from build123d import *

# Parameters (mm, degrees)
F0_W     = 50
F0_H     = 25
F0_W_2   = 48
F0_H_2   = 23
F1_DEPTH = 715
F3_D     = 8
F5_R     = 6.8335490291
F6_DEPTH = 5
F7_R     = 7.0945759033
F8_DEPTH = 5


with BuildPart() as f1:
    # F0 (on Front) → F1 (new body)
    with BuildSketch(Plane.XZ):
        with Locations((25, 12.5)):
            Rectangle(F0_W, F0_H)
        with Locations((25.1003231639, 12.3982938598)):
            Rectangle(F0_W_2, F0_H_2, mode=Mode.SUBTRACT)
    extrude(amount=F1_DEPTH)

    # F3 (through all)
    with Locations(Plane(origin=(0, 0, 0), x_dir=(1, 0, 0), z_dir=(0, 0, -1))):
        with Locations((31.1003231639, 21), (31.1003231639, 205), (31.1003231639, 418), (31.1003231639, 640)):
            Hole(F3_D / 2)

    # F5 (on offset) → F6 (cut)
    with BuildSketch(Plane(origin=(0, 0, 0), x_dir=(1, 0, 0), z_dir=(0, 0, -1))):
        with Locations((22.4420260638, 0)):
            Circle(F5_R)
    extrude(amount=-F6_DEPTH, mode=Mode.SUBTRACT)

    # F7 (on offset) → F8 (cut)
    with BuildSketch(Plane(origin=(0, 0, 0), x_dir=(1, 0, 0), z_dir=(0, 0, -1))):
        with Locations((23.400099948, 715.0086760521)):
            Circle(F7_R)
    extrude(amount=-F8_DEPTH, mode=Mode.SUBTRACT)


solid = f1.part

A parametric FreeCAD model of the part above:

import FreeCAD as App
import Part
import Sketcher
Q = App.Units.Quantity

doc = App.newDocument("Part")
body = doc.addObject("PartDesign::Body", "Body")

sketch1 = body.newObject("Sketcher::SketchObject", "Sketch")
sketch1.AttachmentSupport = (doc.getObject("XZ_Plane"), [""])
sketch1.MapMode = "FlatFace"
sketch1.addGeometry(Part.LineSegment(App.Vector(0, 25, 0), App.Vector(0, 0, 0)), False)
sketch1.addGeometry(Part.LineSegment(App.Vector(0, 0, 0), App.Vector(50, 0, 0)), False)
sketch1.addGeometry(Part.LineSegment(App.Vector(50, 0, 0), App.Vector(50, 25, 0)), False)
sketch1.addGeometry(Part.LineSegment(App.Vector(50, 25, 0), App.Vector(0, 25, 0)), False)
sketch1.addGeometry(Part.LineSegment(App.Vector(49, 1, 0), App.Vector(1, 1, 0)), False)
sketch1.addGeometry(Part.LineSegment(App.Vector(1, 1, 0), App.Vector(1, 24, 0)), False)
sketch1.addGeometry(Part.LineSegment(App.Vector(1, 24, 0), App.Vector(49, 24, 0)), False)
sketch1.addGeometry(Part.LineSegment(App.Vector(49, 24, 0), App.Vector(49, 1, 0)), False)
sketch1.addConstraint(Sketcher.Constraint("Coincident", 0, 2, 1, 1))
sketch1.addConstraint(Sketcher.Constraint("Coincident", 1, 2, 2, 1))
sketch1.addConstraint(Sketcher.Constraint("Coincident", 2, 2, 3, 1))
sketch1.addConstraint(Sketcher.Constraint("Coincident", 3, 2, 0, 1))
sketch1.addConstraint(Sketcher.Constraint("Coincident", 4, 2, 5, 1))
sketch1.addConstraint(Sketcher.Constraint("Coincident", 5, 2, 6, 1))
sketch1.addConstraint(Sketcher.Constraint("Coincident", 6, 2, 7, 1))
sketch1.addConstraint(Sketcher.Constraint("Coincident", 7, 2, 4, 1))
sketch1.addConstraint(Sketcher.Constraint("Vertical", 0))
sketch1.addConstraint(Sketcher.Constraint("Horizontal", 1))
sketch1.addConstraint(Sketcher.Constraint("Vertical", 2))
sketch1.addConstraint(Sketcher.Constraint("Horizontal", 3))
sketch1.addConstraint(Sketcher.Constraint("Horizontal", 4))
sketch1.addConstraint(Sketcher.Constraint("Vertical", 5))
sketch1.addConstraint(Sketcher.Constraint("Horizontal", 6))
sketch1.addConstraint(Sketcher.Constraint("Vertical", 7))
sketch1.addConstraint(Sketcher.Constraint("Coincident", 0, 2, -1, 1))
sketch1.addConstraint(Sketcher.Constraint("DistanceX", 1, 1, 1, 2, Q("50 mm")))
sketch1.addConstraint(Sketcher.Constraint("DistanceX", 4, 2, 4, 1, Q("48 mm")))
sketch1.addConstraint(Sketcher.Constraint("DistanceY", 0, 2, 0, 1, Q("25 mm")))
sketch1.addConstraint(Sketcher.Constraint("DistanceY", 5, 1, 5, 2, Q("23 mm")))
sketch1.addConstraint(Sketcher.Constraint("DistanceX", -1, 1, 4, 2, Q("1.100323 mm")))
sketch1.addConstraint(Sketcher.Constraint("DistanceY", -1, 1, 4, 2, Q("0.898294 mm")))
pad1 = body.newObject("PartDesign::Pad", "Pad")
pad1.Profile = sketch1
pad1.Length = 715

sketch2 = body.newObject("Sketcher::SketchObject", "Sketch001")
sketch2.AttachmentSupport = (doc.getObject("XY_Plane"), [""])
sketch2.MapMode = "FlatFace"
sketch2.addGeometry(Part.Circle(App.Vector(31.1, -21, 0), App.Vector(0, 0, 1), 4), False)
sketch2.addGeometry(Part.Circle(App.Vector(31.1, -205, 0), App.Vector(0, 0, 1), 4), False)
sketch2.addGeometry(Part.Circle(App.Vector(31.1, -418, 0), App.Vector(0, 0, 1), 4), False)
sketch2.addGeometry(Part.Circle(App.Vector(31.1, -640, 0), App.Vector(0, 0, 1), 4), False)
sketch2.addConstraint(Sketcher.Constraint("Equal", 0, 1))
sketch2.addConstraint(Sketcher.Constraint("Equal", 1, 2))
sketch2.addConstraint(Sketcher.Constraint("Equal", 2, 3))
sketch2.addConstraint(Sketcher.Constraint("Vertical", 0, 3, 1, 3))
sketch2.addConstraint(Sketcher.Constraint("Vertical", 1, 3, 2, 3))
sketch2.addConstraint(Sketcher.Constraint("Vertical", 2, 3, 3, 3))
sketch2.addConstraint(Sketcher.Constraint("Diameter", 0, Q("8 mm")))
sketch2.addConstraint(Sketcher.Constraint("DistanceY", 0, 3, -1, 1, Q("21 mm")))
sketch2.addConstraint(Sketcher.Constraint("DistanceY", 1, 3, -1, 1, Q("205 mm")))
sketch2.addConstraint(Sketcher.Constraint("DistanceY", 2, 3, -1, 1, Q("418 mm")))
sketch2.addConstraint(Sketcher.Constraint("DistanceY", 3, 3, -1, 1, Q("640 mm")))
sketch2.addConstraint(Sketcher.Constraint("DistanceX", -1, 1, 0, 3, Q("31.100323 mm")))
doc.recompute()
hole = body.newObject("PartDesign::Hole", "Hole")
hole.Profile = sketch2
hole.ThreadType = "None"
hole.Diameter = 8
hole.DepthType = "ThroughAll"
hole.Reversed = True

sketch3 = body.newObject("Sketcher::SketchObject", "Sketch002")
sketch3.AttachmentSupport = (doc.getObject("XY_Plane"), [""])
sketch3.MapMode = "FlatFace"
sketch3.addGeometry(Part.Circle(App.Vector(22, 0, 0), App.Vector(0, 0, 1), 7), False)
sketch3.addConstraint(Sketcher.Constraint("PointOnObject", 0, 3, -1))
sketch3.addConstraint(Sketcher.Constraint("Diameter", 0, Q("13.667098 mm")))
sketch3.addConstraint(Sketcher.Constraint("DistanceX", -1, 1, 0, 3, Q("22.442026 mm")))
pocket1 = body.newObject("PartDesign::Pocket", "Pocket")
pocket1.Profile = sketch3
pocket1.Length = 5
pocket1.Reversed = True

sketch4 = body.newObject("Sketcher::SketchObject", "Sketch003")
sketch4.AttachmentSupport = (doc.getObject("XY_Plane"), [""])
sketch4.MapMode = "FlatFace"
sketch4.addGeometry(Part.Circle(App.Vector(23, -715, 0), App.Vector(0, 0, 1), 7), False)
sketch4.addConstraint(Sketcher.Constraint("Diameter", 0, Q("14.189152 mm")))
sketch4.addConstraint(Sketcher.Constraint("DistanceX", -1, 1, 0, 3, Q("23.4001 mm")))
sketch4.addConstraint(Sketcher.Constraint("DistanceY", 0, 3, -1, 1, Q("715.008676 mm")))
pocket2 = body.newObject("PartDesign::Pocket", "Pocket001")
pocket2.Profile = sketch4
pocket2.Length = 5
pocket2.Reversed = True

doc.recompute()
